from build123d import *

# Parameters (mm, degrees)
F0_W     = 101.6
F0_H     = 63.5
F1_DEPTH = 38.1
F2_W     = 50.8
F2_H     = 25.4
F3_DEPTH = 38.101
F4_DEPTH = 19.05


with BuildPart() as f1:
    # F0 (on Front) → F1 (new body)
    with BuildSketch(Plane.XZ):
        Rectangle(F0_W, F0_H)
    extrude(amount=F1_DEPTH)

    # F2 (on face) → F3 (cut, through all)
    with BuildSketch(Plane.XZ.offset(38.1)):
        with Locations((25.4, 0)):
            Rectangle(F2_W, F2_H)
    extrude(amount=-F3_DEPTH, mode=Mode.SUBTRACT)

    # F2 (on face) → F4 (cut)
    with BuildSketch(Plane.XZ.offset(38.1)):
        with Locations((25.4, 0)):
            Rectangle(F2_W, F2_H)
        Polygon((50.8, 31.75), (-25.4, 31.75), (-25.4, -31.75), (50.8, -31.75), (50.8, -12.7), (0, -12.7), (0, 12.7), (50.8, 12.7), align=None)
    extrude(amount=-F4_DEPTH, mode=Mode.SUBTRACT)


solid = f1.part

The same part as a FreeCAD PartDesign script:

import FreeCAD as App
import Part
import Sketcher

V = App.Vector
Q = App.Units.Quantity


def add_polygon(sketch, points):
    """Adds a closed chain of lines whose ends are joined by coincident constraints."""
    first, n = sketch.GeometryCount, len(points)
    for a, b in zip(points, points[1:] + points[:1]):
        sketch.addGeometry(Part.LineSegment(App.Vector(*a, 0), App.Vector(*b, 0)), False)
    for i in range(n):
        sketch.addConstraint(Sketcher.Constraint("Coincident", first + i, 2, first + (i + 1) % n, 1))

doc = App.newDocument("Part")
body = doc.addObject("PartDesign::Body", "Body")

# Sketch on XZ plane
sketch1 = doc.addObject("Sketcher::SketchObject", "Sketch")
body.addObject(sketch1)
sketch1.AttachmentSupport = (doc.XZ_Plane, [""])
sketch1.MapMode = "FlatFace"
add_polygon(sketch1, [(-50.8, 31.75), (-50.8, -31.75), (50.8, -31.75), (50.8, 31.75)])  # lines 0-3
sketch1.addConstraint(Sketcher.Constraint("Vertical", 0))
sketch1.addConstraint(Sketcher.Constraint("Horizontal", 1))
sketch1.addConstraint(Sketcher.Constraint("Vertical", 2))
sketch1.addConstraint(Sketcher.Constraint("Horizontal", 3))
sketch1.addConstraint(Sketcher.Constraint("Symmetric", 0, 2, 2, 2, -1, 1))
sketch1.addConstraint(Sketcher.Constraint("DistanceX", 1, 1, 1, 2, Q("4 in")))
sketch1.addConstraint(Sketcher.Constraint("DistanceY", 0, 2, 0, 1, Q("2.5 in")))
pad1 = doc.addObject("PartDesign::Pad", "Pad")
body.addObject(pad1)
pad1.Profile = sketch1
pad1.Length = Q("1.5 in")

# Sketch on XZ plane
sketch2 = doc.addObject("Sketcher::SketchObject", "Sketch001")
body.addObject(sketch2)
sketch2.AttachmentSupport = (doc.XZ_Plane, [""])
sketch2.MapMode = "FlatFace"
sketch2.AttachmentOffset = App.Placement(V(0, 0, 1.5 * 25.4), App.Rotation())
add_polygon(sketch2, [(0, 12.7), (0, -12.7), (50.8, -12.7), (50.8, 12.7)])  # lines 0-3
sketch2.addConstraint(Sketcher.Constraint("Vertical", 0))
sketch2.addConstraint(Sketcher.Constraint("Horizontal", 1))
sketch2.addConstraint(Sketcher.Constraint("Vertical", 2))
sketch2.addConstraint(Sketcher.Constraint("Horizontal", 3))
sketch2.addConstraint(Sketcher.Constraint("Symmetric", 0, 2, 3, 2, -1, 1))
sketch2.addConstraint(Sketcher.Constraint("DistanceX", 1, 1, 1, 2, Q("2 in")))
sketch2.addConstraint(Sketcher.Constraint("DistanceY", 0, 2, 0, 1, Q("1 in")))
pocket1 = doc.addObject("PartDesign::Pocket", "Pocket")
body.addObject(pocket1)
pocket1.Profile = sketch2
pocket1.Type = "ThroughAll"

# Sketch on XZ plane
sketch3 = doc.addObject("Sketcher::SketchObject", "Sketch002")
body.addObject(sketch3)
sketch3.AttachmentSupport = (doc.XZ_Plane, [""])
sketch3.MapMode = "FlatFace"
sketch3.AttachmentOffset = App.Placement(V(0, 0, 1.5 * 25.4), App.Rotation())
add_polygon(sketch3, [(50.8, 31.75), (-25.4, 31.75), (-25.4, -31.75), (50.8, -31.75)])  # lines 0-3
sketch3.addConstraint(Sketcher.Constraint("Horizontal", 0))
sketch3.addConstraint(Sketcher.Constraint("Vertical", 1))
sketch3.addConstraint(Sketcher.Constraint("Horizontal", 2))
sketch3.addConstraint(Sketcher.Constraint("Vertical", 3))
sketch3.addConstraint(Sketcher.Constraint("DistanceX", 0, 2, 0, 1, Q("3 in")))
sketch3.addConstraint(Sketcher.Constraint("DistanceY", 1, 2, 1, 1, Q("2.5 in")))
sketch3.addConstraint(Sketcher.Constraint("DistanceX", 0, 2, -1, 1, Q("1 in")))
sketch3.addConstraint(Sketcher.Constraint("DistanceY", -1, 1, 0, 2, Q("1.25 in")))
pocket2 = doc.addObject("PartDesign::Pocket", "Pocket001")
body.addObject(pocket2)
pocket2.Profile = sketch3
pocket2.Length = Q("0.75 in")

doc.recompute()
